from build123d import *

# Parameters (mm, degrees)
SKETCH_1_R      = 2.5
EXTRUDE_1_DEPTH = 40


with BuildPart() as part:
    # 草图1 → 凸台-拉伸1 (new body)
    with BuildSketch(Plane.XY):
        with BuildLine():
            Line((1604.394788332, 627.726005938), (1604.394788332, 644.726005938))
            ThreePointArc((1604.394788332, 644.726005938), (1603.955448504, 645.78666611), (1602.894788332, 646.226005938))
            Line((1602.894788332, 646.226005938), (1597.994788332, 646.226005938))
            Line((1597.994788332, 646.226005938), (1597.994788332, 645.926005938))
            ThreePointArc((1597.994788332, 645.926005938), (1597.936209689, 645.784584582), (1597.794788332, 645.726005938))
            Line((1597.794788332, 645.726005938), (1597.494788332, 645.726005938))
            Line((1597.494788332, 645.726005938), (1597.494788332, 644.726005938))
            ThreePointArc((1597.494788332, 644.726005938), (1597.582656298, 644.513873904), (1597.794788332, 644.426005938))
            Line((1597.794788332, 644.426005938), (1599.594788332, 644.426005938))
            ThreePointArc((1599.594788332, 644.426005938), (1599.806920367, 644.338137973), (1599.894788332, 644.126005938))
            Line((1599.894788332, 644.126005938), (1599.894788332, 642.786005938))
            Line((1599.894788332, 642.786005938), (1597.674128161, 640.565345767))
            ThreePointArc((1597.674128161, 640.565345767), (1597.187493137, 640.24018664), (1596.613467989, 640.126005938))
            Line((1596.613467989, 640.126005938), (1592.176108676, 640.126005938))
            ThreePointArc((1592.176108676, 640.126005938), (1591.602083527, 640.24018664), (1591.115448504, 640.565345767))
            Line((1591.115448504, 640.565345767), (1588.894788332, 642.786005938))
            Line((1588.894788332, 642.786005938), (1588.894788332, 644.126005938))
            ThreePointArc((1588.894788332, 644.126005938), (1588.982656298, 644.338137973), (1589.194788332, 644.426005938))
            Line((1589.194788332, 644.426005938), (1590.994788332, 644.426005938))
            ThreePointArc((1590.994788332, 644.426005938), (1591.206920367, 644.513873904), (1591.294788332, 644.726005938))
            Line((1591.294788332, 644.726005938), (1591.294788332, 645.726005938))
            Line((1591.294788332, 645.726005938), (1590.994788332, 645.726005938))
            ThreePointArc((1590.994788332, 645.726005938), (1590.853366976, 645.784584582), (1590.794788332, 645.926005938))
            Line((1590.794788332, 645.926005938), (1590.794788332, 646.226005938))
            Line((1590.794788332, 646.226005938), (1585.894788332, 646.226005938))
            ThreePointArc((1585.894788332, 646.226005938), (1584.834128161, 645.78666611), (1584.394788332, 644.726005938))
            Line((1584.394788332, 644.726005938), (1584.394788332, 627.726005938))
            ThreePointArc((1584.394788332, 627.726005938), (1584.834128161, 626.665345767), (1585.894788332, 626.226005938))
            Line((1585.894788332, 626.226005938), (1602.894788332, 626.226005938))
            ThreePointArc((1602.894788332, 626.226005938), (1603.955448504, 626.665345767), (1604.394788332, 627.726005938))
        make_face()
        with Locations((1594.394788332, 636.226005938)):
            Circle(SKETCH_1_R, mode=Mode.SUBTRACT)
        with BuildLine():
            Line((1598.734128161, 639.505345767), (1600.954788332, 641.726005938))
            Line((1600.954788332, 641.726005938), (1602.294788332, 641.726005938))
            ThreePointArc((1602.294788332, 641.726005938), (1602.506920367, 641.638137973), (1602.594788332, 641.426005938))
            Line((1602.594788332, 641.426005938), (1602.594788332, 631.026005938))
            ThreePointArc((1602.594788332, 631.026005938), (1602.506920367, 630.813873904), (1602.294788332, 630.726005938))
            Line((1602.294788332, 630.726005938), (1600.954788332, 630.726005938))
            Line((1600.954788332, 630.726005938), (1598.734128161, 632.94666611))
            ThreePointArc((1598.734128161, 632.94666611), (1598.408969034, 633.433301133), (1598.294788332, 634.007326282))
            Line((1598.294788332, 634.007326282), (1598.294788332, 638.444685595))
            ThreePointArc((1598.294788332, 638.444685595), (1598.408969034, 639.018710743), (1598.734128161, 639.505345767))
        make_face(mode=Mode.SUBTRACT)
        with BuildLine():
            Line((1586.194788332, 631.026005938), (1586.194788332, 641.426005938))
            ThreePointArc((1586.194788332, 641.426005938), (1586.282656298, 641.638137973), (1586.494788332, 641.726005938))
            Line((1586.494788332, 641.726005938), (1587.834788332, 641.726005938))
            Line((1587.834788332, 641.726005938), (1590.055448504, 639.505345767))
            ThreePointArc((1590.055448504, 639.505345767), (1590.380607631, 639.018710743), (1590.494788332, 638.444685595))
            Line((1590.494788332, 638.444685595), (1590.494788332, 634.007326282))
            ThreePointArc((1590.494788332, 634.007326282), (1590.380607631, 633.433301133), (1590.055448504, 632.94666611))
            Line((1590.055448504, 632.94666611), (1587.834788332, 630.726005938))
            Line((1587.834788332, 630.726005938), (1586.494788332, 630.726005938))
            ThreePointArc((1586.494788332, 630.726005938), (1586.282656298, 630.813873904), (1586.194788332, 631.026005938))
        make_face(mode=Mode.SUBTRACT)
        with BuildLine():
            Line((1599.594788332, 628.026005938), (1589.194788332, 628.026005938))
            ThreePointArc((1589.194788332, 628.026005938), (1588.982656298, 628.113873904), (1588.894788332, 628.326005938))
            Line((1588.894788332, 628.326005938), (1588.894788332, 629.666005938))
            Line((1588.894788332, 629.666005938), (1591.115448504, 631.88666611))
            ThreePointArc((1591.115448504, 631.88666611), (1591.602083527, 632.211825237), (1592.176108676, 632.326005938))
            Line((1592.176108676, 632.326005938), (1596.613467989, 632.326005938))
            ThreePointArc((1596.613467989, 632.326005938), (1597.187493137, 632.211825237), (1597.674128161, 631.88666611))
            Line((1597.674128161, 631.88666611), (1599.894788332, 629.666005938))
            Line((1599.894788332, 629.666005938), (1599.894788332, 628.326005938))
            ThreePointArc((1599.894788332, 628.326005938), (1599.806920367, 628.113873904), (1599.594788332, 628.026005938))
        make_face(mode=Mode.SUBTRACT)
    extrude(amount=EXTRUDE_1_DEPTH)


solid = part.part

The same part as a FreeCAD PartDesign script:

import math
import FreeCAD as App
import Part
import Sketcher

V = App.Vector
Q = App.Units.Quantity

doc = App.newDocument("Part")
body = doc.addObject("PartDesign::Body", "Body")

# Sketch on XY plane
sketch1 = doc.addObject("Sketcher::SketchObject", "Sketch")
body.addObject(sketch1)
sketch1.AttachmentSupport = (doc.XY_Plane, [""])
sketch1.MapMode = "FlatFace"
sketch1.addGeometry([
    Part.LineSegment(V(1604.394788, 627.726006, 0), V(1604.394788, 644.726006, 0)),  # 0
    Part.ArcOfCircle(Part.Circle(V(1602.894788, 644.726006, 0), V(0, 0, 1), 1.5), math.radians(0), math.radians(90)),  # 1
    Part.LineSegment(V(1602.894788, 646.226006, 0), V(1597.994788, 646.226006, 0)),  # 2
    Part.LineSegment(V(1597.994788, 646.226006, 0), V(1597.994788, 645.926006, 0)),  # 3
    Part.ArcOfCircle(Part.Circle(V(1597.794788, 645.926006, 0), V(0, 0, 1), 0.2), math.radians(-90), math.radians(0)),  # 4
    Part.LineSegment(V(1597.794788, 645.726006, 0), V(1597.494788, 645.726006, 0)),  # 5
    Part.LineSegment(V(1597.494788, 645.726006, 0), V(1597.494788, 644.726006, 0)),  # 6
    Part.ArcOfCircle(Part.Circle(V(1597.794788, 644.726006, 0), V(0, 0, 1), 0.3), math.radians(-180), math.radians(-90)),  # 7
    Part.LineSegment(V(1597.794788, 644.426006, 0), V(1599.594788, 644.426006, 0)),  # 8
    Part.ArcOfCircle(Part.Circle(V(1599.594788, 644.126006, 0), V(0, 0, 1), 0.3), math.radians(0), math.radians(90)),  # 9
    Part.LineSegment(V(1599.894788, 644.126006, 0), V(1599.894788, 642.786006, 0)),  # 10
    Part.LineSegment(V(1599.894788, 642.786006, 0), V(1597.674128, 640.565346, 0)),  # 11
    Part.ArcOfCircle(Part.Circle(V(1596.613468, 641.626006, 0), V(0, 0, 1), 1.5), math.radians(-90), math.radians(-45)),  # 12
    Part.LineSegment(V(1596.613468, 640.126006, 0), V(1592.176109, 640.126006, 0)),  # 13
    Part.ArcOfCircle(Part.Circle(V(1592.176109, 641.626006, 0), V(0, 0, 1), 1.5), math.radians(-135), math.radians(-90)),  # 14
    Part.LineSegment(V(1591.115449, 640.565346, 0), V(1588.894788, 642.786006, 0)),  # 15
    Part.LineSegment(V(1588.894788, 642.786006, 0), V(1588.894788, 644.126006, 0)),  # 16
    Part.ArcOfCircle(Part.Circle(V(1589.194788, 644.126006, 0), V(0, 0, 1), 0.3), math.radians(90), math.radians(180)),  # 17
    Part.LineSegment(V(1589.194788, 644.426006, 0), V(1590.994788, 644.426006, 0)),  # 18
    Part.ArcOfCircle(Part.Circle(V(1590.994788, 644.726006, 0), V(0, 0, 1), 0.3), math.radians(-90), math.radians(0)),  # 19
    Part.LineSegment(V(1591.294788, 644.726006, 0), V(1591.294788, 645.726006, 0)),  # 20
    Part.LineSegment(V(1591.294788, 645.726006, 0), V(1590.994788, 645.726006, 0)),  # 21
    Part.ArcOfCircle(Part.Circle(V(1590.994788, 645.926006, 0), V(0, 0, 1), 0.2), math.radians(-180), math.radians(-90)),  # 22
    Part.LineSegment(V(1590.794788, 645.926006, 0), V(1590.794788, 646.226006, 0)),  # 23
    Part.LineSegment(V(1590.794788, 646.226006, 0), V(1585.894788, 646.226006, 0)),  # 24
    Part.ArcOfCircle(Part.Circle(V(1585.894788, 644.726006, 0), V(0, 0, 1), 1.5), math.radians(90), math.radians(180)),  # 25
    Part.LineSegment(V(1584.394788, 644.726006, 0), V(1584.394788, 627.726006, 0)),  # 26
    Part.ArcOfCircle(Part.Circle(V(1585.894788, 627.726006, 0), V(0, 0, 1), 1.5), math.radians(-180), math.radians(-90)),  # 27
    Part.LineSegment(V(1585.894788, 626.226006, 0), V(1602.894788, 626.226006, 0)),  # 28
    Part.ArcOfCircle(Part.Circle(V(1602.894788, 627.726006, 0), V(0, 0, 1), 1.5), math.radians(-90), math.radians(0)),  # 29
    Part.ArcOfCircle(Part.Circle(V(1599.594788, 628.326006, 0), V(0, 0, 1), 0.3), math.radians(-90), math.radians(0)),  # 30
    Part.LineSegment(V(1599.594788, 628.026006, 0), V(1589.194788, 628.026006, 0)),  # 31
    Part.ArcOfCircle(Part.Circle(V(1589.194788, 628.326006, 0), V(0, 0, 1), 0.3), math.radians(-180), math.radians(-90)),  # 32
    Part.LineSegment(V(1588.894788, 628.326006, 0), V(1588.894788, 629.666006, 0)),  # 33
    Part.LineSegment(V(1588.894788, 629.666006, 0), V(1591.115449, 631.886666, 0)),  # 34
    Part.ArcOfCircle(Part.Circle(V(1592.176109, 630.826006, 0), V(0, 0, 1), 1.5), math.radians(90), math.radians(135)),  # 35
    Part.LineSegment(V(1592.176109, 632.326006, 0), V(1596.613468, 632.326006, 0)),  # 36
    Part.ArcOfCircle(Part.Circle(V(1596.613468, 630.826006, 0), V(0, 0, 1), 1.5), math.radians(45), math.radians(90)),  # 37
    Part.LineSegment(V(1597.674128, 631.886666, 0), V(1599.894788, 629.666006, 0)),  # 38
    Part.LineSegment(V(1599.894788, 629.666006, 0), V(1599.894788, 628.326006, 0)),  # 39
    Part.ArcOfCircle(Part.Circle(V(1586.494788, 631.026006, 0), V(0, 0, 1), 0.3), math.radians(-180), math.radians(-90)),  # 40
    Part.LineSegment(V(1586.194788, 631.026006, 0), V(1586.194788, 641.426006, 0)),  # 41
    Part.ArcOfCircle(Part.Circle(V(1586.494788, 641.426006, 0), V(0, 0, 1), 0.3), math.radians(90), math.radians(180)),  # 42
    Part.LineSegment(V(1586.494788, 641.726006, 0), V(1587.834788, 641.726006, 0)),  # 43
    Part.LineSegment(V(1587.834788, 641.726006, 0), V(1590.055449, 639.505346, 0)),  # 44
    Part.ArcOfCircle(Part.Circle(V(1588.994788, 638.444686, 0), V(0, 0, 1), 1.5), math.radians(0), math.radians(45)),  # 45
    Part.LineSegment(V(1590.494788, 638.444686, 0), V(1590.494788, 634.007326, 0)),  # 46
    Part.ArcOfCircle(Part.Circle(V(1588.994788, 634.007326, 0), V(0, 0, 1), 1.5), math.radians(-45), math.radians(0)),  # 47
    Part.LineSegment(V(1590.055449, 632.946666, 0), V(1587.834788, 630.726006, 0)),  # 48
    Part.LineSegment(V(1587.834788, 630.726006, 0), V(1586.494788, 630.726006, 0)),  # 49
    Part.Circle(V(1594.394788, 636.226006, 0), V(0, 0, 1), 2.5),  # 50
    Part.ArcOfCircle(Part.Circle(V(1599.794788, 638.444686, 0), V(0, 0, 1), 1.5), math.radians(135), math.radians(180)),  # 51
    Part.LineSegment(V(1598.734128, 639.505346, 0), V(1600.954788, 641.726006, 0)),  # 52
    Part.LineSegment(V(1600.954788, 641.726006, 0), V(1602.294788, 641.726006, 0)),  # 53
    Part.ArcOfCircle(Part.Circle(V(1602.294788, 641.426006, 0), V(0, 0, 1), 0.3), math.radians(0), math.radians(90)),  # 54
    Part.LineSegment(V(1602.594788, 641.426006, 0), V(1602.594788, 631.026006, 0)),  # 55
    Part.ArcOfCircle(Part.Circle(V(1602.294788, 631.026006, 0), V(0, 0, 1), 0.3), math.radians(-90), math.radians(0)),  # 56
    Part.LineSegment(V(1602.294788, 630.726006, 0), V(1600.954788, 630.726006, 0)),  # 57
    Part.LineSegment(V(1600.954788, 630.726006, 0), V(1598.734128, 632.946666, 0)),  # 58
    Part.ArcOfCircle(Part.Circle(V(1599.794788, 634.007326, 0), V(0, 0, 1), 1.5), math.radians(-180), math.radians(-135)),  # 59
    Part.LineSegment(V(1598.294788, 634.007326, 0), V(1598.294788, 638.444686, 0)),  # 60
], False)
sketch1.addConstraint([
    Sketcher.Constraint("Tangent", 0, 2, 1, 1),
    Sketcher.Constraint("Tangent", 1, 2, 2, 1),
    Sketcher.Constraint("Coincident", 2, 2, 3, 1),
    Sketcher.Constraint("Tangent", 3, 2, 4, 2),
    Sketcher.Constraint("Tangent", 4, 1, 5, 1),
    Sketcher.Constraint("Coincident", 5, 2, 6, 1),
    Sketcher.Constraint("Tangent", 6, 2, 7, 1),
    Sketcher.Constraint("Tangent", 7, 2, 8, 1),
    Sketcher.Constraint("Tangent", 8, 2, 9, 2),
    Sketcher.Constraint("Tangent", 9, 1, 10, 1),
    Sketcher.Constraint("Coincident", 10, 2, 11, 1),
    Sketcher.Constraint("Tangent", 11, 2, 12, 2),
    Sketcher.Constraint("Tangent", 12, 1, 13, 1),
    Sketcher.Constraint("Tangent", 13, 2, 14, 2),
    Sketcher.Constraint("Tangent", 14, 1, 15, 1),
    Sketcher.Constraint("Coincident", 15, 2, 16, 1),
    Sketcher.Constraint("Tangent", 16, 2, 17, 2),
    Sketcher.Constraint("Tangent", 17, 1, 18, 1),
    Sketcher.Constraint("Tangent", 18, 2, 19, 1),
    Sketcher.Constraint("Tangent", 19, 2, 20, 1),
    Sketcher.Constraint("Coincident", 20, 2, 21, 1),
    Sketcher.Constraint("Tangent", 21, 2, 22, 2),
    Sketcher.Constraint("Tangent", 22, 1, 23, 1),
    Sketcher.Constraint("Coincident", 23, 2, 24, 1),
    Sketcher.Constraint("Tangent", 24, 2, 25, 1),
    Sketcher.Constraint("Tangent", 25, 2, 26, 1),
    Sketcher.Constraint("Tangent", 26, 2, 27, 1),
    Sketcher.Constraint("Tangent", 27, 2, 28, 1),
    Sketcher.Constraint("Tangent", 28, 2, 29, 1),
    Sketcher.Constraint("Tangent", 29, 2, 0, 1),
    Sketcher.Constraint("Tangent", 30, 1, 31, 1),
    Sketcher.Constraint("Tangent", 31, 2, 32, 2),
    Sketcher.Constraint("Tangent", 32, 1, 33, 1),
    Sketcher.Constraint("Coincident", 33, 2, 34, 1),
    Sketcher.Constraint("Tangent", 34, 2, 35, 2),
    Sketcher.Constraint("Tangent", 35, 1, 36, 1),
    Sketcher.Constraint("Tangent", 36, 2, 37, 2),
    Sketcher.Constraint("Tangent", 37, 1, 38, 1),
    Sketcher.Constraint("Coincident", 38, 2, 39, 1),
    Sketcher.Constraint("Tangent", 39, 2, 30, 2),
    Sketcher.Constraint("Tangent", 40, 1, 41, 1),
    Sketcher.Constraint("Tangent", 41, 2, 42, 2),
    Sketcher.Constraint("Tangent", 42, 1, 43, 1),
    Sketcher.Constraint("Coincident", 43, 2, 44, 1),
    Sketcher.Constraint("Tangent", 44, 2, 45, 2),
    Sketcher.Constraint("Tangent", 45, 1, 46, 1),
    Sketcher.Constraint("Tangent", 46, 2, 47, 2),
    Sketcher.Constraint("Tangent", 47, 1, 48, 1),
    Sketcher.Constraint("Coincident", 48, 2, 49, 1),
    Sketcher.Constraint("Tangent", 49, 2, 40, 2),
    Sketcher.Constraint("Tangent", 51, 1, 52, 1),
    Sketcher.Constraint("Coincident", 52, 2, 53, 1),
    Sketcher.Constraint("Tangent", 53, 2, 54, 2),
    Sketcher.Constraint("Tangent", 54, 1, 55, 1),
    Sketcher.Constraint("Tangent", 55, 2, 56, 2),
    Sketcher.Constraint("Tangent", 56, 1, 57, 1),
    Sketcher.Constraint("Coincident", 57, 2, 58, 1),
    Sketcher.Constraint("Tangent", 58, 2, 59, 2),
    Sketcher.Constraint("Tangent", 59, 1, 60, 1),
    Sketcher.Constraint("Tangent", 60, 2, 51, 2),
    Sketcher.Constraint("Vertical", 0),
    Sketcher.Constraint("Horizontal", 2),
    Sketcher.Constraint("Vertical", 3),
    Sketcher.Constraint("Horizontal", 5),
    Sketcher.Constraint("Vertical", 6),
    Sketcher.Constraint("Horizontal", 8),
    Sketcher.Constraint("Vertical", 10),
    Sketcher.Constraint("Horizontal", 13),
    Sketcher.Constraint("Vertical", 16),
    Sketcher.Constraint("Horizontal", 18),
    Sketcher.Constraint("Vertical", 20),
    Sketcher.Constraint("Horizontal", 21),
    Sketcher.Constraint("Vertical", 23),
    Sketcher.Constraint("Horizontal", 24),
    Sketcher.Constraint("Vertical", 26),
    Sketcher.Constraint("Horizontal", 28),
    Sketcher.Constraint("Horizontal", 31),
    Sketcher.Constraint("Vertical", 33),
    Sketcher.Constraint("Horizontal", 36),
    Sketcher.Constraint("Vertical", 39),
    Sketcher.Constraint("Vertical", 41),
    Sketcher.Constraint("Horizontal", 43),
    Sketcher.Constraint("Vertical", 46),
    Sketcher.Constraint("Horizontal", 49),
    Sketcher.Constraint("Horizontal", 53),
    Sketcher.Constraint("Vertical", 55),
    Sketcher.Constraint("Horizontal", 57),
    Sketcher.Constraint("Vertical", 60),
    Sketcher.Constraint("Equal", 7, 9),
    Sketcher.Constraint("Equal", 1, 12),
    Sketcher.Constraint("Equal", 12, 14),
    Sketcher.Constraint("Equal", 9, 17),
    Sketcher.Constraint("Equal", 17, 19),
    Sketcher.Constraint("Equal", 4, 22),
    Sketcher.Constraint("Equal", 14, 25),
    Sketcher.Constraint("Equal", 25, 27),
    Sketcher.Constraint("Equal", 27, 29),
    Sketcher.Constraint("Equal", 19, 30),
    Sketcher.Constraint("Equal", 30, 32),
    Sketcher.Constraint("Equal", 29, 35),
    Sketcher.Constraint("Equal", 35, 37),
    Sketcher.Constraint("Equal", 32, 40),
    Sketcher.Constraint("Equal", 40, 42),
    Sketcher.Constraint("Equal", 37, 45),
    Sketcher.Constraint("Equal", 45, 47),
    Sketcher.Constraint("Equal", 47, 51),
    Sketcher.Constraint("Equal", 42, 54),
    Sketcher.Constraint("Equal", 54, 56),
    Sketcher.Constraint("Equal", 51, 59),
    Sketcher.Constraint("Perpendicular", 11, 15),
    Sketcher.Constraint("Perpendicular", 15, 34),
    Sketcher.Constraint("Perpendicular", 34, 38),
    Sketcher.Constraint("Parallel", 38, 44),
    Sketcher.Constraint("Perpendicular", 44, 48),
    Sketcher.Constraint("Parallel", 48, 52),
    Sketcher.Constraint("Perpendicular", 52, 58),
    Sketcher.Constraint("Horizontal", 1, 3, 7, 3),
    Sketcher.Constraint("Horizontal", 9, 3, 17, 3),
    Sketcher.Constraint("Horizontal", 4, 3, 22, 3),
    Sketcher.Constraint("Horizontal", 19, 3, 25, 3),
    Sketcher.Constraint("Horizontal", 45, 3, 51, 3),
    Sketcher.Constraint("Horizontal", 42, 3, 54, 3),
    Sketcher.Constraint("Horizontal", 40, 3, 56, 3),
    Sketcher.Constraint("Horizontal", 47, 3, 59, 3),
    Sketcher.Constraint("Horizontal", 11, 2, 14, 1),
    Sketcher.Constraint("Horizontal", 10, 2, 15, 2),
    Sketcher.Constraint("Horizontal", 33, 2, 38, 2),
    Sketcher.Constraint("Vertical", 4, 3, 7, 3),
    Sketcher.Constraint("Vertical", 19, 3, 22, 3),
    Sketcher.Constraint("Vertical", 9, 3, 30, 3),
    Sketcher.Constraint("Vertical", 17, 3, 32, 3),
    Sketcher.Constraint("Vertical", 14, 3, 35, 3),
    Sketcher.Constraint("Vertical", 43, 2, 48, 2),
    Sketcher.Constraint("Equal", 8, 18),
    Sketcher.Constraint("Equal", 2, 24),
    Sketcher.Constraint("Equal", 49, 53),
    Sketcher.Constraint("Equal", 28, 0),
    Sketcher.Constraint("Equal", 21, 3),
    Sketcher.Constraint("Equal", 57, 10),
    Sketcher.Constraint("Equal", 16, 33),
    Sketcher.Constraint("Equal", 31, 41),
    Sketcher.Constraint("Equal", 36, 46),
    Sketcher.Constraint("Diameter", 50, Q("5 mm")),
    Sketcher.Constraint("Radius", 1, Q("1.5 mm")),
    Sketcher.Constraint("Radius", 4, Q("0.2 mm")),
    Sketcher.Constraint("Radius", 7, Q("0.3 mm")),
    Sketcher.Constraint("DistanceX", 28, 1, 28, 2, Q("17 mm")),
    Sketcher.Constraint("DistanceX", 2, 2, 2, 1, Q("4.9 mm")),
    Sketcher.Constraint("DistanceX", 8, 1, 8, 2, Q("1.8 mm")),
    Sketcher.Constraint("DistanceX", 43, 1, 43, 2, Q("1.34 mm")),
    Sketcher.Constraint("DistanceX", 13, 2, 13, 1, Q("4.437359 mm")),
    Sketcher.Constraint("DistanceX", -1, 1, 1, 3, Q("1602.894788 mm")),
    Sketcher.Constraint("DistanceX", -1, 1, 40, 3, Q("1586.494788 mm")),
    Sketcher.Constraint("DistanceX", -1, 1, 50, 3, Q("1594.394788 mm")),
    Sketcher.Constraint("DistanceX", -1, 1, 51, 3, Q("1599.794788 mm")),
    Sketcher.Constraint("DistanceY", -1, 1, 1, 3, Q("644.726006 mm")),
    Sketcher.Constraint("DistanceY", -1, 1, 30, 3, Q("628.326006 mm")),
    Sketcher.Constraint("DistanceY", -1, 1, 40, 3, Q("631.026006 mm")),
    Sketcher.Constraint("DistanceY", -1, 1, 50, 3, Q("636.226006 mm")),
])
pad1 = doc.addObject("PartDesign::Pad", "Pad")
body.addObject(pad1)
pad1.Profile = sketch1
pad1.Length = 40

doc.recompute()
